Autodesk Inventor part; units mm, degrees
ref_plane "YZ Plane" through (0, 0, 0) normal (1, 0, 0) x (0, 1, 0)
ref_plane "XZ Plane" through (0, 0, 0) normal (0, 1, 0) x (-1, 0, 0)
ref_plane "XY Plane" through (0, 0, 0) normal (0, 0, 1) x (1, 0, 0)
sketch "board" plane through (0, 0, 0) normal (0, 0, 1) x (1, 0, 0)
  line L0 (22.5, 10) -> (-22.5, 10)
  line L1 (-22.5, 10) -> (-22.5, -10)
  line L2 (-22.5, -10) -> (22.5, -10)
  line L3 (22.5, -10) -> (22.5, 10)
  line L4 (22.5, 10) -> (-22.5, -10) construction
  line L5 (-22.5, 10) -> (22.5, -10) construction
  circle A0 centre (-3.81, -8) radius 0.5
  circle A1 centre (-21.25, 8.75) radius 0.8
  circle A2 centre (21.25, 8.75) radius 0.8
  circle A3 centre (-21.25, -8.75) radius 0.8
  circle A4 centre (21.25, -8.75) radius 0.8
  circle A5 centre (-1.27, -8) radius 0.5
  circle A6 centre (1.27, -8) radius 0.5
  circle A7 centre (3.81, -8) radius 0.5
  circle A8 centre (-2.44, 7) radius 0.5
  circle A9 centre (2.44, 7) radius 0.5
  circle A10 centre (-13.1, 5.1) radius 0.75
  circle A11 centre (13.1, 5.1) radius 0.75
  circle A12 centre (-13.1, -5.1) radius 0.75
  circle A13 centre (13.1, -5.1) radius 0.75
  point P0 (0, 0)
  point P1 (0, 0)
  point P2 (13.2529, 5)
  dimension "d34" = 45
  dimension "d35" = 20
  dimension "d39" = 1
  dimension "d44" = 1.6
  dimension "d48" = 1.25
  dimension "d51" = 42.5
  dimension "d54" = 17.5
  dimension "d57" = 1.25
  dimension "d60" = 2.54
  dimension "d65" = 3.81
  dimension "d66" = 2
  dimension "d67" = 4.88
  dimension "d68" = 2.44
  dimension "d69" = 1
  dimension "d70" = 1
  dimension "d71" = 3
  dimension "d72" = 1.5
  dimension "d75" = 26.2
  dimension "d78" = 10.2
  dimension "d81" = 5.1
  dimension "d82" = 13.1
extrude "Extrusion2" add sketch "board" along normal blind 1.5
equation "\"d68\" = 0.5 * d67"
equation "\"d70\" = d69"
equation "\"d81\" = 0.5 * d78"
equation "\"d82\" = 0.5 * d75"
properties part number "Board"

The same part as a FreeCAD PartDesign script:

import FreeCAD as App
import Part
import Sketcher
from FreeCAD import Vector
Q = App.Units.Quantity


def add_polygon(sketch, points):
    """Adds a closed chain of lines whose ends are joined by coincident constraints."""
    first, n = sketch.GeometryCount, len(points)
    for a, b in zip(points, points[1:] + points[:1]):
        sketch.addGeometry(Part.LineSegment(App.Vector(*a, 0), App.Vector(*b, 0)), False)
    for i in range(n):
        sketch.addConstraint(Sketcher.Constraint("Coincident", first + i, 2, first + (i + 1) % n, 1))

doc = App.newDocument("Part")
body = doc.addObject("PartDesign::Body", "Body")

# Sketch on XY plane
sketch1 = doc.addObject("Sketcher::SketchObject", "Sketch")
body.addObject(sketch1)
sketch1.AttachmentSupport = (doc.XY_Plane, [""])
sketch1.MapMode = "FlatFace"
add_polygon(sketch1, [(22.5, -10), (22.5, 10), (-22.5, 10), (-22.5, -10)])  # lines 0-3
sketch1.addGeometry(Part.Circle(Vector(-21.2, -8.8, 0), Vector(0, 0, 1), 0.8), False)  # 4
sketch1.addGeometry(Part.Circle(Vector(-13.1, -5.1, 0), Vector(0, 0, 1), 0.8), False)  # 5
sketch1.addGeometry(Part.Circle(Vector(-3.8, -8, 0), Vector(0, 0, 1), 0.5), False)  # 6
sketch1.addGeometry(Part.Circle(Vector(-1.3, -8, 0), Vector(0, 0, 1), 0.5), False)  # 7
sketch1.addGeometry(Part.Circle(Vector(1.3, -8, 0), Vector(0, 0, 1), 0.5), False)  # 8
sketch1.addGeometry(Part.Circle(Vector(3.8, -8, 0), Vector(0, 0, 1), 0.5), False)  # 9
sketch1.addGeometry(Part.Circle(Vector(21.2, -8.8, 0), Vector(0, 0, 1), 0.8), False)  # 10
sketch1.addGeometry(Part.Circle(Vector(13.1, -5.1, 0), Vector(0, 0, 1), 0.8), False)  # 11
sketch1.addGeometry(Part.Circle(Vector(-13.1, 5.1, 0), Vector(0, 0, 1), 0.8), False)  # 12
sketch1.addGeometry(Part.Circle(Vector(-21.2, 8.8, 0), Vector(0, 0, 1), 0.8), False)  # 13
sketch1.addGeometry(Part.Circle(Vector(-2.4, 7, 0), Vector(0, 0, 1), 0.5), False)  # 14
sketch1.addGeometry(Part.Circle(Vector(2.4, 7, 0), Vector(0, 0, 1), 0.5), False)  # 15
sketch1.addGeometry(Part.Circle(Vector(13.1, 5.1, 0), Vector(0, 0, 1), 0.8), False)  # 16
sketch1.addGeometry(Part.Circle(Vector(21.2, 8.8, 0), Vector(0, 0, 1), 0.8), False)  # 17
sketch1.addConstraint([
    Sketcher.Constraint("Vertical", 0),
    Sketcher.Constraint("Horizontal", 1),
    Sketcher.Constraint("Vertical", 2),
    Sketcher.Constraint("Horizontal", 3),
    Sketcher.Constraint("Equal", 6, 7),
    Sketcher.Constraint("Equal", 7, 8),
    Sketcher.Constraint("Equal", 8, 9),
    Sketcher.Constraint("Equal", 4, 10),
    Sketcher.Constraint("Equal", 5, 11),
    Sketcher.Constraint("Equal", 11, 12),
    Sketcher.Constraint("Equal", 10, 13),
    Sketcher.Constraint("Equal", 9, 14),
    Sketcher.Constraint("Equal", 14, 15),
    Sketcher.Constraint("Equal", 12, 16),
    Sketcher.Constraint("Equal", 13, 17),
    Sketcher.Constraint("Symmetric", 11, 3, 12, 3, -1, 1),
    Sketcher.Constraint("Symmetric", 10, 3, 13, 3, -1, 1),
    Sketcher.Constraint("Symmetric", 5, 3, 16, 3, -1, 1),
    Sketcher.Constraint("Symmetric", 4, 3, 17, 3, -1, 1),
    Sketcher.Constraint("Symmetric", 0, 2, 2, 2, -1, 1),
    Sketcher.Constraint("Symmetric", 7, 3, 8, 3, -2),
    Sketcher.Constraint("Symmetric", 6, 3, 9, 3, -2),
    Sketcher.Constraint("Symmetric", 4, 3, 10, 3, -2),
    Sketcher.Constraint("Symmetric", 5, 3, 11, 3, -2),
    Sketcher.Constraint("Symmetric", 14, 3, 15, 3, -2),
    Sketcher.Constraint("Horizontal", 6, 3, 7, 3),
    Sketcher.Constraint("Diameter", 6, Q("1 mm")),
    Sketcher.Constraint("Diameter", 4, Q("1.6 mm")),
    Sketcher.Constraint("Diameter", 5, Q("1.5 mm")),
    Sketcher.Constraint("DistanceX", 1, 2, 1, 1, Q("45 mm")),
    Sketcher.Constraint("DistanceY", 0, 1, 0, 2, Q("20 mm")),
    Sketcher.Constraint("DistanceY", 15, 3, 0, 2, Q("3 mm")),
    Sketcher.Constraint("DistanceY", 2, 2, 6, 3, Q("2 mm")),
    Sketcher.Constraint("DistanceX", 5, 3, -1, 1, Q("13.1 mm")),
    Sketcher.Constraint("DistanceY", 5, 3, -1, 1, Q("5.1 mm")),
    Sketcher.Constraint("DistanceY", 4, 3, 13, 3, Q("17.5 mm")),
    Sketcher.Constraint("DistanceX", 6, 3, -1, 1, Q("3.81 mm")),
    Sketcher.Constraint("DistanceX", 14, 3, -1, 1, Q("2.44 mm")),
    Sketcher.Constraint("DistanceX", 6, 3, 7, 3, Q("2.54 mm")),
    Sketcher.Constraint("DistanceX", 17, 3, 0, 2, Q("1.25 mm")),
])
pad1 = doc.addObject("PartDesign::Pad", "Pad")
body.addObject(pad1)
pad1.Profile = sketch1
pad1.Length = 1.5

doc.recompute()
